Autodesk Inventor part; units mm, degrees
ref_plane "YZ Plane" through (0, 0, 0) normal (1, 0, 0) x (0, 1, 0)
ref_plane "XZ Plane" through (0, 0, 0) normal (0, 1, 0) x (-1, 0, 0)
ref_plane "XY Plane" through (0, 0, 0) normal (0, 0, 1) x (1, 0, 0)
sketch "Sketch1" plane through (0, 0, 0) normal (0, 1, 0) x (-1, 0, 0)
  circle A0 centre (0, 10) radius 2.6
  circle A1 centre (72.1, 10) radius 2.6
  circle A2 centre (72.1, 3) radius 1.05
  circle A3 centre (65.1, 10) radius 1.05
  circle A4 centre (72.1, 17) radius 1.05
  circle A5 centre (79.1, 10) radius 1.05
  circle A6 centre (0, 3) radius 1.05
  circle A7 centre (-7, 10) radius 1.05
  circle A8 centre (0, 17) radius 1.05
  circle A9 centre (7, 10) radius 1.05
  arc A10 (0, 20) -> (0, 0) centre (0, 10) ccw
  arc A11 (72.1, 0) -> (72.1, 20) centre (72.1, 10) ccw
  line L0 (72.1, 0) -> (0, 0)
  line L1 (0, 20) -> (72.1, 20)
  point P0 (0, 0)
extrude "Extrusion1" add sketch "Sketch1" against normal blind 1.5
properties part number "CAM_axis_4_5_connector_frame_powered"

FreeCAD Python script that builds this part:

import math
import FreeCAD as App
import Part
import Sketcher

V = App.Vector

doc = App.newDocument("Part")
body = doc.addObject("PartDesign::Body", "Body")

# Sketch on XZ plane
sketch1 = body.newObject("Sketcher::SketchObject", "Sketch")
sketch1.AttachmentSupport = (doc.getObject("XZ_Plane"), [""])
sketch1.MapMode = "FlatFace"
sketch1.addGeometry([
    Part.LineSegment(V(-72.1, 20, 0), V(0, 20, 0)),  # 0
    Part.ArcOfCircle(Part.Circle(V(0, 10, 0), V(0, 0, 1), 10), math.radians(-90), math.radians(90)),  # 1
    Part.LineSegment(V(0, 0, 0), V(-72.1, 0, 0)),  # 2
    Part.ArcOfCircle(Part.Circle(V(-72.1, 10, 0), V(0, 0, 1), 10), math.radians(90), math.radians(270)),  # 3
    Part.Circle(V(0, 3, 0), V(0, 0, 1), 1.05),  # 4
    Part.Circle(V(-72.1, 3, 0), V(0, 0, 1), 1.05),  # 5
    Part.Circle(V(7, 10, 0), V(0, 0, 1), 1.05),  # 6
    Part.Circle(V(0, 10, 0), V(0, 0, 1), 2.6),  # 7
    Part.Circle(V(-7, 10, 0), V(0, 0, 1), 1.05),  # 8
    Part.Circle(V(0, 17, 0), V(0, 0, 1), 1.05),  # 9
    Part.Circle(V(-65.1, 10, 0), V(0, 0, 1), 1.05),  # 10
    Part.Circle(V(-72.1, 10, 0), V(0, 0, 1), 2.6),  # 11
    Part.Circle(V(-79.1, 10, 0), V(0, 0, 1), 1.05),  # 12
    Part.Circle(V(-72.1, 17, 0), V(0, 0, 1), 1.05),  # 13
], False)
sketch1.addConstraint([
    Sketcher.Constraint("Tangent", 0, 2, 1, 2),
    Sketcher.Constraint("Tangent", 1, 1, 2, 1),
    Sketcher.Constraint("Tangent", 2, 2, 3, 2),
    Sketcher.Constraint("Tangent", 3, 1, 0, 1),
    Sketcher.Constraint("Horizontal", 0),
    Sketcher.Constraint("Horizontal", 2),
    Sketcher.Constraint("Coincident", 1, 1, -1, 1),
    Sketcher.Constraint("Coincident", 7, 3, 1, 3),
    Sketcher.Constraint("Coincident", 11, 3, 3, 3),
    Sketcher.Constraint("Equal", 4, 5),
    Sketcher.Constraint("Equal", 5, 6),
    Sketcher.Constraint("Equal", 6, 8),
    Sketcher.Constraint("Equal", 8, 9),
    Sketcher.Constraint("Equal", 9, 10),
    Sketcher.Constraint("Equal", 7, 11),
    Sketcher.Constraint("Equal", 10, 12),
    Sketcher.Constraint("Equal", 12, 13),
    Sketcher.Constraint("Symmetric", 6, 3, 8, 3, -2),
    Sketcher.Constraint("PointOnObject", 4, 3, -2),
    Sketcher.Constraint("PointOnObject", 9, 3, -2),
    Sketcher.Constraint("Horizontal", 4, 3, 5, 3),
    Sketcher.Constraint("Horizontal", 3, 3, 6, 3),
    Sketcher.Constraint("Horizontal", 8, 3, 10, 3),
    Sketcher.Constraint("Horizontal", 11, 3, 12, 3),
    Sketcher.Constraint("Horizontal", 9, 3, 13, 3),
    Sketcher.Constraint("Vertical", 3, 3, 5, 3),
    Sketcher.Constraint("Vertical", 11, 3, 13, 3),
    Sketcher.Constraint("Radius", 1, 10.0),
    Sketcher.Constraint("Diameter", 4, 2.1),
    Sketcher.Constraint("Diameter", 7, 5.2),
    Sketcher.Constraint("DistanceX", 0, 1, 0, 2, 72.1),
    Sketcher.Constraint("DistanceY", -1, 1, 4, 3, 3.0),
    Sketcher.Constraint("DistanceX", -1, 1, 6, 3, 7.0),
    Sketcher.Constraint("DistanceY", -1, 1, 9, 3, 17.0),
    Sketcher.Constraint("DistanceX", 3, 3, 10, 3, 7.0),
    Sketcher.Constraint("DistanceX", 12, 3, 3, 3, 7.0),
])
pad1 = body.newObject("PartDesign::Pad", "Pad")
pad1.Profile = sketch1
pad1.Length = 1.5

doc.recompute()
